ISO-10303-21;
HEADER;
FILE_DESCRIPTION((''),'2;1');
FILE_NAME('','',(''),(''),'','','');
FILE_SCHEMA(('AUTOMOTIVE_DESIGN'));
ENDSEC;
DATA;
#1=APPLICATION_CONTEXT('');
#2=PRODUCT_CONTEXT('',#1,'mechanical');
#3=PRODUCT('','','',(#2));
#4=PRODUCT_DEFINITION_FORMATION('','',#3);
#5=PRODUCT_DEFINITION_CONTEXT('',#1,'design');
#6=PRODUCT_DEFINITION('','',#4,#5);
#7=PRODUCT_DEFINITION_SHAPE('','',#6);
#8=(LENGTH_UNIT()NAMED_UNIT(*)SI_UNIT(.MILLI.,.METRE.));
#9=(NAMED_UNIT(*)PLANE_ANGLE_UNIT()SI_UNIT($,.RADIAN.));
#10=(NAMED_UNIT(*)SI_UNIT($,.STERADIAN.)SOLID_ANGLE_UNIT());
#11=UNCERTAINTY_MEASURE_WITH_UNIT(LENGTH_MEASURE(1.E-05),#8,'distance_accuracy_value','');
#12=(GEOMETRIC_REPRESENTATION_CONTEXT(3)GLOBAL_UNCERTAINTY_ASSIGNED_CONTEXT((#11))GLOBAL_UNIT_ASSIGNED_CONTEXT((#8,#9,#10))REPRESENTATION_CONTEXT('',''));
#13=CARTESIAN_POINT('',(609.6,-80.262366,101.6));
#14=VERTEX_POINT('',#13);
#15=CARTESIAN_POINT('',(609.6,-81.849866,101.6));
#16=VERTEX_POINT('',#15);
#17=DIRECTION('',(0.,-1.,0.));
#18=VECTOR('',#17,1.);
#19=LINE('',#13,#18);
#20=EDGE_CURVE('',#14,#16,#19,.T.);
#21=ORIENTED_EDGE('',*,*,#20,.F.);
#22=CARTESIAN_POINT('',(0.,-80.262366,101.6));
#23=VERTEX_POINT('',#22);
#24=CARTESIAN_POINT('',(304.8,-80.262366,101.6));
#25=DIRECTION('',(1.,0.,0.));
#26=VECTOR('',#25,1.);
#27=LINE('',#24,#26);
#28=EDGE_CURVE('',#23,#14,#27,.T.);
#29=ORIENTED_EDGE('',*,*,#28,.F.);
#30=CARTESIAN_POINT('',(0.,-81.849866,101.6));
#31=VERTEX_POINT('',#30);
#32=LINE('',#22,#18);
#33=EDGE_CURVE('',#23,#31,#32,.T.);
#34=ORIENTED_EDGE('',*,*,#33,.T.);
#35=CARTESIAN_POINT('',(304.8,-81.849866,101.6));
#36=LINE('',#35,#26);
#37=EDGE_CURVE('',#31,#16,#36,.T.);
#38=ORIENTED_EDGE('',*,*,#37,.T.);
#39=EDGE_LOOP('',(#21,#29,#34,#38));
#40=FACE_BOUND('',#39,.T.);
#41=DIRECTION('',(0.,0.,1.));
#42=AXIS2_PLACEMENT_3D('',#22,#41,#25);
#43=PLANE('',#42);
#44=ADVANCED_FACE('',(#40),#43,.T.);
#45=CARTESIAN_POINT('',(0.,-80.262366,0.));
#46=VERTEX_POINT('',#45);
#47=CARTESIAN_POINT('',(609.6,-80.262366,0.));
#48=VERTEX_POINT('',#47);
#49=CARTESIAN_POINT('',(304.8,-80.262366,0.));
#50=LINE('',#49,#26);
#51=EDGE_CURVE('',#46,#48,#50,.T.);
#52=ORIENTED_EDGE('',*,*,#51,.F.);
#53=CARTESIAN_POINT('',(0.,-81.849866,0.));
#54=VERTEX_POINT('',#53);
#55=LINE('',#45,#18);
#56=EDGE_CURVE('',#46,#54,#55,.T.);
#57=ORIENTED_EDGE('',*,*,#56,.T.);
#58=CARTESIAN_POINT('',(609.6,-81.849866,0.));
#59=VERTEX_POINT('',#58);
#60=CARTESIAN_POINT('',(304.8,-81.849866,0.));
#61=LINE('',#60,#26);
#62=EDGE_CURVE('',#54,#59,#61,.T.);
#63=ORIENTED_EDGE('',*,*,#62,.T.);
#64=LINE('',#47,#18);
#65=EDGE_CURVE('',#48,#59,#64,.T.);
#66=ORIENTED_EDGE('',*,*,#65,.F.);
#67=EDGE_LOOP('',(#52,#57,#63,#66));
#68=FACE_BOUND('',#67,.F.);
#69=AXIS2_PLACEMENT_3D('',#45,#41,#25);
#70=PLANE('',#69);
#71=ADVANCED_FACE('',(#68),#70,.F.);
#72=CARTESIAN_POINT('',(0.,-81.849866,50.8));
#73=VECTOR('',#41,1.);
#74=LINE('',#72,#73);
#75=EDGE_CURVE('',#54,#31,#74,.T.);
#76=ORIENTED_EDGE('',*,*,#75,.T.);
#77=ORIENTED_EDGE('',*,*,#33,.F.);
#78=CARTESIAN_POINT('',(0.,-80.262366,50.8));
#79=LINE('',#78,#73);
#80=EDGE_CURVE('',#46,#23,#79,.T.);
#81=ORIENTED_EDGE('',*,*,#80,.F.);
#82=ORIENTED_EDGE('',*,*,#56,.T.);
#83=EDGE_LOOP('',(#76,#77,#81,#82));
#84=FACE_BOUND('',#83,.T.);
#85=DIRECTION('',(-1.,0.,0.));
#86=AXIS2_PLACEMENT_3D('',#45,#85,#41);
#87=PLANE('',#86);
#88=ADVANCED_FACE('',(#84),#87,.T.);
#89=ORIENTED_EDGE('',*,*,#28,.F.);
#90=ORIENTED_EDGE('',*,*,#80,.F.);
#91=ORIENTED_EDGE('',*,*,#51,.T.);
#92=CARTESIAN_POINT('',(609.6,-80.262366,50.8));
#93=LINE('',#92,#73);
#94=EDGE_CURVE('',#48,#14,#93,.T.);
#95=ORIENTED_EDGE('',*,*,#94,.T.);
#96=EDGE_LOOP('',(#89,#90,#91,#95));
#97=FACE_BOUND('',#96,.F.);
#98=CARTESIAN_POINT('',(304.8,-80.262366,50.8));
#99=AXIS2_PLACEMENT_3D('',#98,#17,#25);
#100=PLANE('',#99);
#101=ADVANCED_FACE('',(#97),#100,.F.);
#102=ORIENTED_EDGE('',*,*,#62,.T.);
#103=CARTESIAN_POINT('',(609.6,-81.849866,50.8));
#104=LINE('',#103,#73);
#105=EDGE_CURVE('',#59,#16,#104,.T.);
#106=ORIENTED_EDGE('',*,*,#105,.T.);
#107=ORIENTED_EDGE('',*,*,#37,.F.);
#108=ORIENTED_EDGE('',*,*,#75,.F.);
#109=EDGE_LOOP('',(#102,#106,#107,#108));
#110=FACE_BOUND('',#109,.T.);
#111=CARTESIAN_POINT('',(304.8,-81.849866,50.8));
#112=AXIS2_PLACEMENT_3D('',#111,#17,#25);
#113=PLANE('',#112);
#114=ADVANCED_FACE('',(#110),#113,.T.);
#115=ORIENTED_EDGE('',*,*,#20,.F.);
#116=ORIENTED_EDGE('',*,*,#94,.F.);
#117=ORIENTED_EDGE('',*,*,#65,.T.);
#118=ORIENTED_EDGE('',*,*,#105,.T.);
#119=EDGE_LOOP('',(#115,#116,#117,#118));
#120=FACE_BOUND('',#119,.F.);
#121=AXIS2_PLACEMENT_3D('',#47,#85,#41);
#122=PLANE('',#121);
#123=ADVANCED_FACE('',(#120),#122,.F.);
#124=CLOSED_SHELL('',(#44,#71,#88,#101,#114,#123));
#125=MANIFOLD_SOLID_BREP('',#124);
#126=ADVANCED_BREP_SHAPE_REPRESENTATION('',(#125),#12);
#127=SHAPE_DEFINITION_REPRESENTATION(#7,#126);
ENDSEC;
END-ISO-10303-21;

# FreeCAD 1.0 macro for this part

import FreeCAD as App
import Part
import Sketcher
Q = App.Units.Quantity


def add_polygon(sketch, points):
    """Adds a closed chain of lines whose ends are joined by coincident constraints."""
    first, n = sketch.GeometryCount, len(points)
    for a, b in zip(points, points[1:] + points[:1]):
        sketch.addGeometry(Part.LineSegment(App.Vector(*a, 0), App.Vector(*b, 0)), False)
    for i in range(n):
        sketch.addConstraint(Sketcher.Constraint("Coincident", first + i, 2, first + (i + 1) % n, 1))

doc = App.newDocument("Part")
body = doc.addObject("PartDesign::Body", "Body")

# Sketch on XZ plane
sketch1 = doc.addObject("Sketcher::SketchObject", "Sketch")
body.addObject(sketch1)
sketch1.AttachmentSupport = (doc.XZ_Plane, [""])
sketch1.MapMode = "FlatFace"
sketch1.AttachmentOffset = App.Placement(App.Vector(0, 0, 80.262366), App.Rotation())
add_polygon(sketch1, [(0, 101.6), (0, 0), (609.6, 0), (609.6, 101.6)])  # lines 0-3
sketch1.addConstraint([
    Sketcher.Constraint("Vertical", 0),
    Sketcher.Constraint("Horizontal", 1),
    Sketcher.Constraint("Vertical", 2),
    Sketcher.Constraint("Horizontal", 3),
    Sketcher.Constraint("Coincident", 0, 2, -1, 1),
    Sketcher.Constraint("DistanceX", 1, 1, 1, 2, Q("24 in")),
    Sketcher.Constraint("DistanceY", 0, 2, 0, 1, Q("4 in")),
])
pad1 = doc.addObject("PartDesign::Pad", "Pad")
body.addObject(pad1)
pad1.Profile = sketch1
pad1.Length = Q("0.0625 in")

doc.recompute()
